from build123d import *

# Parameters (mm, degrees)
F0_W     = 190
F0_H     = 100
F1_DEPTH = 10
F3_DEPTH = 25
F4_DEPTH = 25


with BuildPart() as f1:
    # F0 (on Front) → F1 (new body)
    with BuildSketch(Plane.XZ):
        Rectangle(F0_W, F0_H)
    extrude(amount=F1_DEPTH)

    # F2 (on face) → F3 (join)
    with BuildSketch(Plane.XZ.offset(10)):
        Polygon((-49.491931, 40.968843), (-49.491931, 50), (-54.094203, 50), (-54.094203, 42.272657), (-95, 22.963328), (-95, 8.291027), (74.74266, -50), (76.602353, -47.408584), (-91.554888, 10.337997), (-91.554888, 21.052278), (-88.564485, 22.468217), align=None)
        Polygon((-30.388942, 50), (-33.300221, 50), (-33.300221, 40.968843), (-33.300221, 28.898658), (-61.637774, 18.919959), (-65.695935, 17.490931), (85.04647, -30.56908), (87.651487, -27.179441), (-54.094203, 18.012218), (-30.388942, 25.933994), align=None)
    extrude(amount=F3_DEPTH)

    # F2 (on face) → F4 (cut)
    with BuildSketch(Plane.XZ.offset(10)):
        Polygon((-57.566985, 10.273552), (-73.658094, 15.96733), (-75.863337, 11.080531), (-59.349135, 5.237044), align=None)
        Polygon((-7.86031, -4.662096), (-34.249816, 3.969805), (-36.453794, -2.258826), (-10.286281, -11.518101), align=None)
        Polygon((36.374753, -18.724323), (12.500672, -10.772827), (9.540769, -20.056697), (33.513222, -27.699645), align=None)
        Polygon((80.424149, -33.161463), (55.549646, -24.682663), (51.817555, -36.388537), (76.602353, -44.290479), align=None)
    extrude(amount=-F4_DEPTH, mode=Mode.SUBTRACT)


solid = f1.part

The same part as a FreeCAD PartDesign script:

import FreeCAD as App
import Part
import Sketcher
from FreeCAD import Vector

doc = App.newDocument("Part")
params = doc.addObject("Spreadsheet::Sheet", "Params")
for row, (alias, value) in enumerate([
    ("sketch1_width", "190 mm"),
    ("sketch1_height", "100 mm"),
    ("pad1_length", "10 mm"),
    ("pad2_length", "25 mm"),
    ("pocket1_length", "25 mm"),
], start=1):
    params.set(f"A{row}", alias)
    params.set(f"B{row}", "=" + value)
    params.setAlias(f"B{row}", alias)

body = doc.addObject("PartDesign::Body", "Body")

# Sketch on XZ plane
sketch1 = body.newObject("Sketcher::SketchObject", "Sketch")
sketch1.AttachmentSupport = (doc.getObject("XZ_Plane"), [""])
sketch1.MapMode = "FlatFace"
sketch1.addGeometry([
    Part.LineSegment(Vector(-95, 50, 0), Vector(-95, -50, 0)),
    Part.LineSegment(Vector(-95, -50, 0), Vector(95, -50, 0)),
    Part.LineSegment(Vector(95, -50, 0), Vector(95, 50, 0)),
    Part.LineSegment(Vector(95, 50, 0), Vector(-95, 50, 0)),
], False)
sketch1.addConstraint([
    Sketcher.Constraint("Coincident", 0, 2, 1, 1),
    Sketcher.Constraint("Coincident", 1, 2, 2, 1),
    Sketcher.Constraint("Coincident", 2, 2, 3, 1),
    Sketcher.Constraint("Coincident", 3, 2, 0, 1),
    Sketcher.Constraint("Vertical", 0),
    Sketcher.Constraint("Horizontal", 1),
    Sketcher.Constraint("Vertical", 2),
    Sketcher.Constraint("Horizontal", 3),
    Sketcher.Constraint("Symmetric", 0, 2, 2, 2, -1, 1),
    Sketcher.Constraint("DistanceX", 1, 1, 1, 2, 190.0),
    Sketcher.Constraint("DistanceY", 0, 2, 0, 1, 100.0),
])
sketch1.setExpression("Constraints[9]", "Params.sketch1_width")
sketch1.setExpression("Constraints[10]", "Params.sketch1_height")
pad1 = body.newObject("PartDesign::Pad", "Pad")
pad1.Profile = sketch1
pad1.setExpression("Length", "Params.pad1_length")

# Sketch on XZ plane
sketch2 = body.newObject("Sketcher::SketchObject", "Sketch001")
sketch2.AttachmentSupport = (doc.getObject("XZ_Plane"), [""])
sketch2.MapMode = "FlatFace"
sketch2.AttachmentOffset = App.Placement(Vector(0, 0, 10), App.Rotation())
sketch2.addGeometry([
    Part.LineSegment(Vector(-49.491931, 40.968843, 0), Vector(-49.491931, 50, 0)),  # 0
    Part.LineSegment(Vector(-49.491931, 50, 0), Vector(-54.094203, 50, 0)),  # 1
    Part.LineSegment(Vector(-54.094203, 50, 0), Vector(-54.094203, 42.272657, 0)),  # 2
    Part.LineSegment(Vector(-54.094203, 42.272657, 0), Vector(-95, 22.963328, 0)),  # 3
    Part.LineSegment(Vector(-95, 22.963328, 0), Vector(-95, 8.291027, 0)),  # 4
    Part.LineSegment(Vector(-95, 8.291027, 0), Vector(74.74266, -50, 0)),  # 5
    Part.LineSegment(Vector(74.74266, -50, 0), Vector(76.602353, -47.408584, 0)),  # 6
    Part.LineSegment(Vector(76.602353, -47.408584, 0), Vector(-91.554888, 10.337997, 0)),  # 7
    Part.LineSegment(Vector(-91.554888, 10.337997, 0), Vector(-91.554888, 21.052278, 0)),  # 8
    Part.LineSegment(Vector(-91.554888, 21.052278, 0), Vector(-88.564485, 22.468217, 0)),  # 9
    Part.LineSegment(Vector(-88.564485, 22.468217, 0), Vector(-49.491931, 40.968843, 0)),  # 10
    Part.LineSegment(Vector(-30.388942, 50, 0), Vector(-33.300221, 50, 0)),  # 11
    Part.LineSegment(Vector(-33.300221, 50, 0), Vector(-33.300221, 28.898658, 0)),  # 12
    Part.LineSegment(Vector(-33.300221, 28.898658, 0), Vector(-61.637774, 18.919959, 0)),  # 13
    Part.LineSegment(Vector(-61.637774, 18.919959, 0), Vector(-65.695935, 17.490931, 0)),  # 14
    Part.LineSegment(Vector(-65.695935, 17.490931, 0), Vector(85.04647, -30.56908, 0)),  # 15
    Part.LineSegment(Vector(85.04647, -30.56908, 0), Vector(87.651487, -27.179441, 0)),  # 16
    Part.LineSegment(Vector(87.651487, -27.179441, 0), Vector(-54.094203, 18.012218, 0)),  # 17
    Part.LineSegment(Vector(-54.094203, 18.012218, 0), Vector(-30.388942, 25.933994, 0)),  # 18
    Part.LineSegment(Vector(-30.388942, 25.933994, 0), Vector(-30.388942, 50, 0)),  # 19
], False)
sketch2.addConstraint([
    Sketcher.Constraint("Coincident", 0, 2, 1, 1),
    Sketcher.Constraint("Coincident", 1, 2, 2, 1),
    Sketcher.Constraint("Coincident", 2, 2, 3, 1),
    Sketcher.Constraint("Coincident", 3, 2, 4, 1),
    Sketcher.Constraint("Coincident", 4, 2, 5, 1),
    Sketcher.Constraint("Coincident", 5, 2, 6, 1),
    Sketcher.Constraint("Coincident", 6, 2, 7, 1),
    Sketcher.Constraint("Coincident", 7, 2, 8, 1),
    Sketcher.Constraint("Coincident", 8, 2, 9, 1),
    Sketcher.Constraint("Coincident", 9, 2, 10, 1),
    Sketcher.Constraint("Coincident", 10, 2, 0, 1),
    Sketcher.Constraint("Coincident", 11, 2, 12, 1),
    Sketcher.Constraint("Coincident", 12, 2, 13, 1),
    Sketcher.Constraint("Coincident", 13, 2, 14, 1),
    Sketcher.Constraint("Coincident", 14, 2, 15, 1),
    Sketcher.Constraint("Coincident", 15, 2, 16, 1),
    Sketcher.Constraint("Coincident", 16, 2, 17, 1),
    Sketcher.Constraint("Coincident", 17, 2, 18, 1),
    Sketcher.Constraint("Coincident", 18, 2, 19, 1),
    Sketcher.Constraint("Coincident", 19, 2, 11, 1),
    Sketcher.Constraint("Vertical", 0),
    Sketcher.Constraint("Horizontal", 1),
    Sketcher.Constraint("Vertical", 2),
    Sketcher.Constraint("Vertical", 4),
    Sketcher.Constraint("Vertical", 8),
    Sketcher.Constraint("Horizontal", 11),
    Sketcher.Constraint("Vertical", 12),
    Sketcher.Constraint("Vertical", 19),
    Sketcher.Constraint("Parallel", 5, 7),
    Sketcher.Constraint("Parallel", 9, 10),
    Sketcher.Constraint("Parallel", 13, 14),
    Sketcher.Constraint("Parallel", 15, 17),
    Sketcher.Constraint("Horizontal", 1, 2, 11, 2),
    Sketcher.Constraint("Vertical", 2, 2, 17, 2),
    Sketcher.Constraint("DistanceY", -1, 1, 0, 2, 50.0),
    Sketcher.Constraint("DistanceX", 3, 2, -1, 1, 95.0),
    Sketcher.Constraint("DistanceY", 5, 2, -1, 1, 50.0),
    Sketcher.Constraint("DistanceY", 4, 2, 4, 1, 14.672301),
    Sketcher.Constraint("DistanceY", 12, 2, 2, 2, 13.373999),
    Sketcher.Constraint("Distance", 5, 179.472601),
    Sketcher.Constraint("DistanceX", 1, 2, 1, 1, 4.602272),
    Sketcher.Constraint("DistanceX", 11, 2, 11, 1, 2.911279),
    Sketcher.Constraint("DistanceY", 8, 1, 8, 2, 10.714281),
    Sketcher.Constraint("DistanceY", 12, 2, 12, 1, 21.101342),
    Sketcher.Constraint("DistanceY", 13, 2, 2, 2, 23.352698),
    Sketcher.Constraint("DistanceX", 10, 2, 15, 2, 134.538401),
    Sketcher.Constraint("DistanceY", 16, 2, 12, 2, 56.078099),
    Sketcher.Constraint("Distance", 10, 43.231211),
    Sketcher.Constraint("Distance", 13, 30.043158),
    Sketcher.Constraint("Distance", 15, 158.218322),
    Sketcher.Constraint("DistanceY", 0, 1, 0, 2, 9.031157),
    Sketcher.Constraint("DistanceY", 19, 1, 19, 2, 24.066006),
    Sketcher.Constraint("DistanceX", 0, 2, -1, 1, 49.491931),
    Sketcher.Constraint("DistanceY", -1, 1, 3, 2, 22.963328),
    Sketcher.Constraint("DistanceX", 7, 2, -1, 1, 91.554888),
    Sketcher.Constraint("DistanceY", -1, 1, 8, 2, 21.052278),
    Sketcher.Constraint("DistanceX", 11, 2, -1, 1, 33.300221),
    Sketcher.Constraint("DistanceY", -1, 1, 14, 2, 17.490931),
    Sketcher.Constraint("DistanceY", -1, 1, 17, 2, 18.012218),
    Sketcher.Constraint("DistanceY", 6, 2, 2, 2, 89.681241),
])
pad2 = body.newObject("PartDesign::Pad", "Pad001")
pad2.Profile = sketch2
pad2.setExpression("Length", "Params.pad2_length")

# Sketch on XZ plane
sketch3 = body.newObject("Sketcher::SketchObject", "Sketch002")
sketch3.AttachmentSupport = (doc.getObject("XZ_Plane"), [""])
sketch3.MapMode = "FlatFace"
sketch3.AttachmentOffset = App.Placement(Vector(0, 0, 10), App.Rotation())
sketch3.addGeometry([
    Part.LineSegment(Vector(-57.566985, 10.273552, 0), Vector(-73.658094, 15.96733, 0)),  # 0
    Part.LineSegment(Vector(-73.658094, 15.96733, 0), Vector(-75.863337, 11.080531, 0)),  # 1
    Part.LineSegment(Vector(-75.863337, 11.080531, 0), Vector(-59.349135, 5.237044, 0)),  # 2
    Part.LineSegment(Vector(-59.349135, 5.237044, 0), Vector(-57.566985, 10.273552, 0)),  # 3
    Part.LineSegment(Vector(-7.86031, -4.662096, 0), Vector(-34.249816, 3.969805, 0)),  # 4
    Part.LineSegment(Vector(-34.249816, 3.969805, 0), Vector(-36.453794, -2.258826, 0)),  # 5
    Part.LineSegment(Vector(-36.453794, -2.258826, 0), Vector(-10.286281, -11.518101, 0)),  # 6
    Part.LineSegment(Vector(-10.286281, -11.518101, 0), Vector(-7.86031, -4.662096, 0)),  # 7
    Part.LineSegment(Vector(36.374753, -18.724323, 0), Vector(12.500672, -10.772827, 0)),  # 8
    Part.LineSegment(Vector(12.500672, -10.772827, 0), Vector(9.540769, -20.056697, 0)),  # 9
    Part.LineSegment(Vector(9.540769, -20.056697, 0), Vector(33.513222, -27.699645, 0)),  # 10
    Part.LineSegment(Vector(33.513222, -27.699645, 0), Vector(36.374753, -18.724323, 0)),  # 11
    Part.LineSegment(Vector(80.424149, -33.161463, 0), Vector(55.549646, -24.682663, 0)),  # 12
    Part.LineSegment(Vector(55.549646, -24.682663, 0), Vector(51.817555, -36.388537, 0)),  # 13
    Part.LineSegment(Vector(51.817555, -36.388537, 0), Vector(76.602353, -44.290479, 0)),  # 14
    Part.LineSegment(Vector(76.602353, -44.290479, 0), Vector(80.424149, -33.161463, 0)),  # 15
], False)
sketch3.addConstraint([
    Sketcher.Constraint("Coincident", 0, 2, 1, 1),
    Sketcher.Constraint("Coincident", 1, 2, 2, 1),
    Sketcher.Constraint("Coincident", 2, 2, 3, 1),
    Sketcher.Constraint("Coincident", 3, 2, 0, 1),
    Sketcher.Constraint("Coincident", 4, 2, 5, 1),
    Sketcher.Constraint("Coincident", 5, 2, 6, 1),
    Sketcher.Constraint("Coincident", 6, 2, 7, 1),
    Sketcher.Constraint("Coincident", 7, 2, 4, 1),
    Sketcher.Constraint("Coincident", 8, 2, 9, 1),
    Sketcher.Constraint("Coincident", 9, 2, 10, 1),
    Sketcher.Constraint("Coincident", 10, 2, 11, 1),
    Sketcher.Constraint("Coincident", 11, 2, 8, 1),
    Sketcher.Constraint("Coincident", 12, 2, 13, 1),
    Sketcher.Constraint("Coincident", 13, 2, 14, 1),
    Sketcher.Constraint("Coincident", 14, 2, 15, 1),
    Sketcher.Constraint("Coincident", 15, 2, 12, 1),
    Sketcher.Constraint("Parallel", 0, 2),
    Sketcher.Constraint("Perpendicular", 2, 3),
    Sketcher.Constraint("Parallel", 3, 5),
    Sketcher.Constraint("Perpendicular", 5, 6),
    Sketcher.Constraint("Perpendicular", 6, 7),
    Sketcher.Constraint("Perpendicular", 9, 10),
    Sketcher.Constraint("Perpendicular", 10, 11),
    Sketcher.Constraint("Parallel", 11, 13),
    Sketcher.Constraint("Perpendicular", 13, 14),
    Sketcher.Constraint("DistanceY", 8, 2, 5, 2, 8.514001),
    Sketcher.Constraint("DistanceY", 6, 2, -1, 1, 11.518101),
    Sketcher.Constraint("DistanceY", 1, 2, 0, 2, 4.886799),
    Sketcher.Constraint("DistanceX", 0, 2, 5, 2, 37.2043),
    Sketcher.Constraint("DistanceY", 7, 2, 4, 2, 8.631901),
    Sketcher.Constraint("DistanceY", 9, 2, 7, 2, 15.394601),
    Sketcher.Constraint("DistanceX", 11, 2, 14, 2, 40.2276),
    Sketcher.Constraint("DistanceY", 15, 2, 12, 2, 8.4788),
    Sketcher.Constraint("Distance", 0, 17.06877),
    Sketcher.Constraint("Distance", 2, 17.517569),
    Sketcher.Constraint("Distance", 4, 27.765369),
    Sketcher.Constraint("Distance", 5, 6.607069),
    Sketcher.Constraint("Distance", 7, 7.272561),
    Sketcher.Constraint("Distance", 12, 26.279858),
    Sketcher.Constraint("Distance", 15, 11.76695),
    Sketcher.Constraint("DistanceY", -1, 1, 0, 2, 15.96733),
    Sketcher.Constraint("DistanceX", 6, 2, -1, 1, 10.286281),
    Sketcher.Constraint("DistanceX", -1, 1, 9, 2, 9.540769),
    Sketcher.Constraint("DistanceY", 14, 2, -1, 1, 44.290479),
    Sketcher.Constraint("DistanceX", -1, 1, 15, 2, 80.424149),
    Sketcher.Constraint("DistanceX", 7, 2, 8, 2, 20.360982),
    Sketcher.Constraint("DistanceY", 10, 2, 9, 2, 7.642948),
    Sketcher.Constraint("DistanceX", 10, 2, 11, 2, 2.861531),
])
pocket1 = body.newObject("PartDesign::Pocket", "Pocket")
pocket1.Profile = sketch3
pocket1.setExpression("Length", "Params.pocket1_length")

doc.recompute()
